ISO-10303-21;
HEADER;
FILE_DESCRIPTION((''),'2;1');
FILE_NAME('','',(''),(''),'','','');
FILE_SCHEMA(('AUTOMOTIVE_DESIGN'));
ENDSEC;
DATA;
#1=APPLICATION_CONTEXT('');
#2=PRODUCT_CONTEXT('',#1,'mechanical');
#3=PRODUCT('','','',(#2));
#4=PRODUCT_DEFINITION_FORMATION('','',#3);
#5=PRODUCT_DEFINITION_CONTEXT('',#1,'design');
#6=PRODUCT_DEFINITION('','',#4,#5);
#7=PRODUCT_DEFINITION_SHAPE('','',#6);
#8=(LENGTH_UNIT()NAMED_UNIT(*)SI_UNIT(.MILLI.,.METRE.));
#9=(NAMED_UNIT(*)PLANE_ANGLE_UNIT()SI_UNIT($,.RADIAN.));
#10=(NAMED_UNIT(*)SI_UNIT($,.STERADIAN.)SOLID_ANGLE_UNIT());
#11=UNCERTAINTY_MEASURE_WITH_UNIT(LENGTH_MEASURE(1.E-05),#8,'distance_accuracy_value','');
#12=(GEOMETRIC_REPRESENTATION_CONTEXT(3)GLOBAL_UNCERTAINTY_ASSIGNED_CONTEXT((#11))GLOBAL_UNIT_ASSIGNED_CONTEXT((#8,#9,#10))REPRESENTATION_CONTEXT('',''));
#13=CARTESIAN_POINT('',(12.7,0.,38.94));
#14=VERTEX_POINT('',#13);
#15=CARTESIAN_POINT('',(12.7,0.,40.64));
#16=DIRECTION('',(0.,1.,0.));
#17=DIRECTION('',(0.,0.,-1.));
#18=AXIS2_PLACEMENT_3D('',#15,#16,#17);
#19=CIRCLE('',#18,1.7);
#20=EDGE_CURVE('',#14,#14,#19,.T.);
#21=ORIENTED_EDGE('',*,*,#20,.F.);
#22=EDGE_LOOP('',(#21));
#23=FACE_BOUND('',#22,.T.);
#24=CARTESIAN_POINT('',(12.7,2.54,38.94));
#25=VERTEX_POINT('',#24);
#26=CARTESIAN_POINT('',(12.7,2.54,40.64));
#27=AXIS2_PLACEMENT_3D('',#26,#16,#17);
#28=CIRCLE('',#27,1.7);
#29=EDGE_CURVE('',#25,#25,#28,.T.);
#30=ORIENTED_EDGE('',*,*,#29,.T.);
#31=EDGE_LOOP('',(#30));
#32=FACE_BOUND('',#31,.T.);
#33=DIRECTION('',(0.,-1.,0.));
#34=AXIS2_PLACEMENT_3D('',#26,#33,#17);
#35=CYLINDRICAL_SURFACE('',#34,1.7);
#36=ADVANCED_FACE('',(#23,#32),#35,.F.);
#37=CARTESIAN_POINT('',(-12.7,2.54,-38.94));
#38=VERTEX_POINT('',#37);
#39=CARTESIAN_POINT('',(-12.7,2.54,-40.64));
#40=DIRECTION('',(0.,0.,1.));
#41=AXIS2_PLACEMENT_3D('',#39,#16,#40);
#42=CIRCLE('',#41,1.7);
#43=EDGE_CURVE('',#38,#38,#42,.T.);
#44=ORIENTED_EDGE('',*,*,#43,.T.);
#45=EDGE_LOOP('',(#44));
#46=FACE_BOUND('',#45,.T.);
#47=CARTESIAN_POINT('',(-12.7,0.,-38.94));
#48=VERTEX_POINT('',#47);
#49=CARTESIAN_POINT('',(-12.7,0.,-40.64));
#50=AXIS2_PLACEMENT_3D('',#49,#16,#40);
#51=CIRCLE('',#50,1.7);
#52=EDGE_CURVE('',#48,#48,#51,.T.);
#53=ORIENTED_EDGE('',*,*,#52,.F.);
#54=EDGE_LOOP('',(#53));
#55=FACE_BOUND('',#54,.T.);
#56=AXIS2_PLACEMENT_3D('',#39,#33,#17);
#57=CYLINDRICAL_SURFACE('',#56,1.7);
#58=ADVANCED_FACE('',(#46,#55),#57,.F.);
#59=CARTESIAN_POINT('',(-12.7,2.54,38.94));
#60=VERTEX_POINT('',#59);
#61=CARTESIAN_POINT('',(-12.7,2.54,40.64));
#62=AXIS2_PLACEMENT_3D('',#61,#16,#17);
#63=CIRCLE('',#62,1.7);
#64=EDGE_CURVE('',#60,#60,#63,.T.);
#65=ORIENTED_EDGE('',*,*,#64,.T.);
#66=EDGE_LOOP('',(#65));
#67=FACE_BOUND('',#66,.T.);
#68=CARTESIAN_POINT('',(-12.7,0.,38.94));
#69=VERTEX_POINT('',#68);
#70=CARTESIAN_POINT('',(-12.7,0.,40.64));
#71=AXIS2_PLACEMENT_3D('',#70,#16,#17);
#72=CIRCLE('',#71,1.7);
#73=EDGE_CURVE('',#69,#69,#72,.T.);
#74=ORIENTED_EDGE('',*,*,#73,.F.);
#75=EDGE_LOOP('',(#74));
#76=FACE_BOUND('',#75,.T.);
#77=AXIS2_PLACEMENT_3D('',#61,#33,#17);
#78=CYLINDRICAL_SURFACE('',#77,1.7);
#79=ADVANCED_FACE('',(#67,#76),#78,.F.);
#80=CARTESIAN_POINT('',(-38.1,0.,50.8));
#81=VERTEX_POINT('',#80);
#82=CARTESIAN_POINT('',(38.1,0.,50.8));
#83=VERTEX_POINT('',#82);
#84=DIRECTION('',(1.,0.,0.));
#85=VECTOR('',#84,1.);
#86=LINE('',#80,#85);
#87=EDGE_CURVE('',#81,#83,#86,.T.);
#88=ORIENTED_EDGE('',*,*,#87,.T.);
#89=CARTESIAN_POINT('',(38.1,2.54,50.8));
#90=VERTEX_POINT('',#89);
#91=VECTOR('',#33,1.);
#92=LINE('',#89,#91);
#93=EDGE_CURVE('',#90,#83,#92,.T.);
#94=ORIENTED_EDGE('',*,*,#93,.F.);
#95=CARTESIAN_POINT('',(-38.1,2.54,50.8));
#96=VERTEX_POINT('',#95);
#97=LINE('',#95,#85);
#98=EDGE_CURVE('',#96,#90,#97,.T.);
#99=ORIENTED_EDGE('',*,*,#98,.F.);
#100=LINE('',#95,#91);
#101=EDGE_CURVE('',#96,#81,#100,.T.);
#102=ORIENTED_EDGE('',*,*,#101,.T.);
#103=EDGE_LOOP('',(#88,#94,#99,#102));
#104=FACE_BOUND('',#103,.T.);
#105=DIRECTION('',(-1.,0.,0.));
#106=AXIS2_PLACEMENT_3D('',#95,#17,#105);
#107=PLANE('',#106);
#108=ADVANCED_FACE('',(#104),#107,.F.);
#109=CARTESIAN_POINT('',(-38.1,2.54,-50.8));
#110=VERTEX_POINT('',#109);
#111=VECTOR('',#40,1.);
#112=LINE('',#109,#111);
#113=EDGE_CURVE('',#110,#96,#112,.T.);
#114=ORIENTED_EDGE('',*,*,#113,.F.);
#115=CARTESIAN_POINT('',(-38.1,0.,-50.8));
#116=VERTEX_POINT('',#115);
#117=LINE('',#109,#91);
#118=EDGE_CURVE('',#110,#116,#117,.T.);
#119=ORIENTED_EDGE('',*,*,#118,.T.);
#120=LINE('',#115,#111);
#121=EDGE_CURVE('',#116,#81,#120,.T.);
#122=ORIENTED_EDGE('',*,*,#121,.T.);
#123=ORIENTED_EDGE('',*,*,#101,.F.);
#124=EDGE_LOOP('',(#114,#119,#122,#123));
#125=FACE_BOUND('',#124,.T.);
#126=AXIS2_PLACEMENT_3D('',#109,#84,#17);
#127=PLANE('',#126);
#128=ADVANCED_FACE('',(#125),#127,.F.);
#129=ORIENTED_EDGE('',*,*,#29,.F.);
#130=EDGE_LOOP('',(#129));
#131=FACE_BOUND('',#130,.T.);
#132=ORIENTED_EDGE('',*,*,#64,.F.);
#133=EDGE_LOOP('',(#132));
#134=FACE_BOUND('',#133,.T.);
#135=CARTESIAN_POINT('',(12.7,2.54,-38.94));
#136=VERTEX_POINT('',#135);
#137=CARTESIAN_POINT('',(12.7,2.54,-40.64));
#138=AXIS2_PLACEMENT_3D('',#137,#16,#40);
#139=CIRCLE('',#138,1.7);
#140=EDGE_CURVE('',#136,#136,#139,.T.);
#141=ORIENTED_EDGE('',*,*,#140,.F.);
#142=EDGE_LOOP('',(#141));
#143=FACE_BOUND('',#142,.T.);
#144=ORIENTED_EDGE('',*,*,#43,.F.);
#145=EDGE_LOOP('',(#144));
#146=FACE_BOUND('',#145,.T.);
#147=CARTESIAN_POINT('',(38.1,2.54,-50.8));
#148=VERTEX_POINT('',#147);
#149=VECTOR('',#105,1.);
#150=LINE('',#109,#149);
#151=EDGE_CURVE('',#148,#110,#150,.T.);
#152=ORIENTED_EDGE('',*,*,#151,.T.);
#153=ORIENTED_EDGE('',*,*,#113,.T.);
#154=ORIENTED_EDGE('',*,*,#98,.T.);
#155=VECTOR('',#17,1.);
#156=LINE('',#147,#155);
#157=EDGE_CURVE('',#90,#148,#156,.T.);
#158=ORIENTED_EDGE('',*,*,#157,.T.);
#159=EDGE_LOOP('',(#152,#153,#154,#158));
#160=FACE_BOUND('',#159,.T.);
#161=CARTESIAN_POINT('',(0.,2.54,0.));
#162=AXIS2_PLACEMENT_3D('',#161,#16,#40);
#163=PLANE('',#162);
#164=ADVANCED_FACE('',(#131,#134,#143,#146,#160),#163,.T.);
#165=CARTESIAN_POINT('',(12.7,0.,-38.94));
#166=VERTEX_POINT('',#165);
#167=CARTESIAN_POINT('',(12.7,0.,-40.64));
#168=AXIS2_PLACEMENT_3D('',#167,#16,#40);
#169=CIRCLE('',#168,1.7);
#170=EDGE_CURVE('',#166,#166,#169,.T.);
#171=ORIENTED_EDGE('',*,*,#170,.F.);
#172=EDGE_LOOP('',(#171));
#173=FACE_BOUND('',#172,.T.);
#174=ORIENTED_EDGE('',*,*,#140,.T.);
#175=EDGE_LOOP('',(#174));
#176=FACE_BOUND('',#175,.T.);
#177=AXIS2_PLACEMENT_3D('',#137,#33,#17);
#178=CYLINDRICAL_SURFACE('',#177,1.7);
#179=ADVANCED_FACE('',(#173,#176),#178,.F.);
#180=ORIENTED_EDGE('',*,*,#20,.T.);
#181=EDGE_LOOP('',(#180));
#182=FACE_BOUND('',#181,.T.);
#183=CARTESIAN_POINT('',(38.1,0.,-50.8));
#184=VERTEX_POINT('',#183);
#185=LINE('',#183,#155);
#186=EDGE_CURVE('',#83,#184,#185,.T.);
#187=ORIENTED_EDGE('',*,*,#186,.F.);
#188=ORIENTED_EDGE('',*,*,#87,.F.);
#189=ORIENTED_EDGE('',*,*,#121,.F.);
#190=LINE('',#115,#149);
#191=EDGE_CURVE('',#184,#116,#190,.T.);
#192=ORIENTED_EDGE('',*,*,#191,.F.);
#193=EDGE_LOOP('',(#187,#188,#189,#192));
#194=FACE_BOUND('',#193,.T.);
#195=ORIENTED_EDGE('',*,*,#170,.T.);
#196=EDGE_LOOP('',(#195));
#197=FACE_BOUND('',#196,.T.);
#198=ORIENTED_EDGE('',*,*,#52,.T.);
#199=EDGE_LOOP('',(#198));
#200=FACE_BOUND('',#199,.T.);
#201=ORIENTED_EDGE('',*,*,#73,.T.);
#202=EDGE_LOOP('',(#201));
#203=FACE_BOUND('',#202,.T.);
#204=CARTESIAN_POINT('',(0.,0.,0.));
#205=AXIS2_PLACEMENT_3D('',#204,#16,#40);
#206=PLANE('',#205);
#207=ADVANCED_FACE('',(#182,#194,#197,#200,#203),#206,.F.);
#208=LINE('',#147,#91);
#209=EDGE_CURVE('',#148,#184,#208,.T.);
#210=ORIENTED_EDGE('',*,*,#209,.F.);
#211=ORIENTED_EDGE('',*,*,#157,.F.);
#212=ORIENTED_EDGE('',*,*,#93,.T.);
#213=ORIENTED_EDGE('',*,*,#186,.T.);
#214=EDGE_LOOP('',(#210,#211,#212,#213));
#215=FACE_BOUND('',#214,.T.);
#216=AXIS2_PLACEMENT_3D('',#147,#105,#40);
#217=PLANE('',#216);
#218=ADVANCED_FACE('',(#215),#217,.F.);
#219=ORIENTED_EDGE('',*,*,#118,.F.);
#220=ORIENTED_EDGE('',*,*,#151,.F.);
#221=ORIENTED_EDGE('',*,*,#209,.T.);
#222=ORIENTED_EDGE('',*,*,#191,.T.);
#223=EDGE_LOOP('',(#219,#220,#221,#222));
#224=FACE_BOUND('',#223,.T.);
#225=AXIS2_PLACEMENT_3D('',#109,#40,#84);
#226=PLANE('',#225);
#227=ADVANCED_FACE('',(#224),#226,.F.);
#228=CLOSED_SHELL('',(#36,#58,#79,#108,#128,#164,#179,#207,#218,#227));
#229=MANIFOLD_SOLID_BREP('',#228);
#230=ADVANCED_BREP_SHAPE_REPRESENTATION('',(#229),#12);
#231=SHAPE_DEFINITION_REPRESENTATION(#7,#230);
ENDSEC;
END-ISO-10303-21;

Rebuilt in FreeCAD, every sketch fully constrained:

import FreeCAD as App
import Part
import Sketcher

V = App.Vector
Q = App.Units.Quantity

doc = App.newDocument("Part")
body = doc.addObject("PartDesign::Body", "Body")

# Sketch on XZ plane
sketch1 = doc.addObject("Sketcher::SketchObject", "Sketch")
body.addObject(sketch1)
sketch1.AttachmentSupport = (doc.XZ_Plane, [""])
sketch1.MapMode = "FlatFace"
sketch1.addGeometry(Part.LineSegment(V(-38.1, -50.8, 0), V(-38.1, 50.8, 0)), False)
sketch1.addGeometry(Part.LineSegment(V(-38.1, 50.8, 0), V(38.1, 50.8, 0)), False)
sketch1.addGeometry(Part.LineSegment(V(38.1, 50.8, 0), V(38.1, -50.8, 0)), False)
sketch1.addGeometry(Part.LineSegment(V(38.1, -50.8, 0), V(-38.1, -50.8, 0)), False)
sketch1.addGeometry(Part.Circle(V(-12.7, 40.6, 0), V(0, 0, 1), 1.7), False)
sketch1.addGeometry(Part.Circle(V(12.7, 40.6, 0), V(0, 0, 1), 1.7), False)
sketch1.addGeometry(Part.Circle(V(-12.7, -40.6, 0), V(0, 0, 1), 1.7), False)
sketch1.addGeometry(Part.Circle(V(12.7, -40.6, 0), V(0, 0, 1), 1.7), False)
sketch1.addConstraint(Sketcher.Constraint("Coincident", 0, 2, 1, 1))
sketch1.addConstraint(Sketcher.Constraint("Coincident", 1, 2, 2, 1))
sketch1.addConstraint(Sketcher.Constraint("Coincident", 2, 2, 3, 1))
sketch1.addConstraint(Sketcher.Constraint("Coincident", 3, 2, 0, 1))
sketch1.addConstraint(Sketcher.Constraint("Vertical", 0))
sketch1.addConstraint(Sketcher.Constraint("Horizontal", 1))
sketch1.addConstraint(Sketcher.Constraint("Vertical", 2))
sketch1.addConstraint(Sketcher.Constraint("Horizontal", 3))
sketch1.addConstraint(Sketcher.Constraint("Equal", 4, 5))
sketch1.addConstraint(Sketcher.Constraint("Equal", 5, 6))
sketch1.addConstraint(Sketcher.Constraint("Equal", 6, 7))
sketch1.addConstraint(Sketcher.Constraint("Symmetric", 5, 3, 6, 3, -1, 1))
sketch1.addConstraint(Sketcher.Constraint("Symmetric", 4, 3, 7, 3, -1, 1))
sketch1.addConstraint(Sketcher.Constraint("Symmetric", 0, 2, 2, 2, -1, 1))
sketch1.addConstraint(Sketcher.Constraint("Symmetric", 4, 3, 5, 3, -2))
sketch1.addConstraint(Sketcher.Constraint("DistanceX", 1, 1, 1, 2, Q("3 in")))
sketch1.addConstraint(Sketcher.Constraint("DistanceY", 0, 1, 0, 2, Q("4 in")))
sketch1.addConstraint(Sketcher.Constraint("DistanceX", 4, 3, 5, 3, Q("1 in")))
sketch1.addConstraint(Sketcher.Constraint("DistanceY", -1, 1, 4, 3, Q("1.6 in")))
sketch1.addConstraint(Sketcher.Constraint("Diameter", 4, 3.4))
pad1 = doc.addObject("PartDesign::Pad", "Pad")
body.addObject(pad1)
pad1.Profile = sketch1
pad1.Length = Q("0.1 in")
pad1.Reversed = True

doc.recompute()
